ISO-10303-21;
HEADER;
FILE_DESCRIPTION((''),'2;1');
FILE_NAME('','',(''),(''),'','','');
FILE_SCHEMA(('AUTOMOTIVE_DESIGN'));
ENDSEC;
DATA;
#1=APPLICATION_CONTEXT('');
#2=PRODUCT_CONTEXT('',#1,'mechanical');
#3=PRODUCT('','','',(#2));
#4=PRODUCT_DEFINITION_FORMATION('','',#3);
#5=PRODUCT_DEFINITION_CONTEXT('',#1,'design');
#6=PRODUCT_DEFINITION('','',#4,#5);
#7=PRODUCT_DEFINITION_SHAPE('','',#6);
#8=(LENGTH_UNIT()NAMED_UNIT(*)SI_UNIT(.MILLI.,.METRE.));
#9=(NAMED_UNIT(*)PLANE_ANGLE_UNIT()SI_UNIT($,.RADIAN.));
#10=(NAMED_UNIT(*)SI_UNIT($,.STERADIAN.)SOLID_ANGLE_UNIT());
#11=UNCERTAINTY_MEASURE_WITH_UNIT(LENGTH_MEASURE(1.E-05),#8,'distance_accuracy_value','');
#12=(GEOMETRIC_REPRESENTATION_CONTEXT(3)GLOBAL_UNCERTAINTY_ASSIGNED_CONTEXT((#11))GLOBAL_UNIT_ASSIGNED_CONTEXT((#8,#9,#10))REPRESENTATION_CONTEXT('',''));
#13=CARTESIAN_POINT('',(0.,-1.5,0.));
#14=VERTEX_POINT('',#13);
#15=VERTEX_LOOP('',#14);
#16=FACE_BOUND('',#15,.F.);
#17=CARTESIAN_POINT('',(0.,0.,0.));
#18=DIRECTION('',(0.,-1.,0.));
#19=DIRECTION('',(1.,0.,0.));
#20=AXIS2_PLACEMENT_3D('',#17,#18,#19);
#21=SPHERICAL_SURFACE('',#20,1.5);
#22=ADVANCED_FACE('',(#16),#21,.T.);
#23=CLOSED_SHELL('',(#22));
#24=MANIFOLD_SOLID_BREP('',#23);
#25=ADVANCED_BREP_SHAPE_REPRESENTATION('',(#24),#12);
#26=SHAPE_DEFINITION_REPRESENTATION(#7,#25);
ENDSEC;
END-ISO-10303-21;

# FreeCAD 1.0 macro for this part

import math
import FreeCAD as App
import Part
import Sketcher
from FreeCAD import Vector
Q = App.Units.Quantity

doc = App.newDocument("Part")
body = doc.addObject("PartDesign::Body", "Body")

# Sketch on XY plane
sketch1 = body.newObject("Sketcher::SketchObject", "Sketch")
sketch1.AttachmentSupport = (doc.getObject("XY_Plane"), [""])
sketch1.MapMode = "FlatFace"
sketch1.addGeometry([
    Part.LineSegment(Vector(0, 1.5, 0), Vector(0, -1.5, 0)),
    Part.ArcOfCircle(Part.Circle(Vector(0, 0, 0), Vector(0, 0, 1), 1.5), math.radians(-90), math.radians(90)),
], False)
sketch1.addConstraint([
    Sketcher.Constraint("Coincident", 0, 1, 1, 2),
    Sketcher.Constraint("Coincident", 1, 1, 0, 2),
    Sketcher.Constraint("Vertical", 0),
    Sketcher.Constraint("Coincident", 1, 3, -1, 1),
    Sketcher.Constraint("PointOnObject", 0, 1, -2),
    Sketcher.Constraint("Radius", 1, Q("1.5 mm")),
])
revolution = body.newObject("PartDesign::Revolution", "Revolution")
revolution.Profile = sketch1
revolution.ReferenceAxis = (sketch1, ["V_Axis"])
revolution.Angle = 360

doc.recompute()
